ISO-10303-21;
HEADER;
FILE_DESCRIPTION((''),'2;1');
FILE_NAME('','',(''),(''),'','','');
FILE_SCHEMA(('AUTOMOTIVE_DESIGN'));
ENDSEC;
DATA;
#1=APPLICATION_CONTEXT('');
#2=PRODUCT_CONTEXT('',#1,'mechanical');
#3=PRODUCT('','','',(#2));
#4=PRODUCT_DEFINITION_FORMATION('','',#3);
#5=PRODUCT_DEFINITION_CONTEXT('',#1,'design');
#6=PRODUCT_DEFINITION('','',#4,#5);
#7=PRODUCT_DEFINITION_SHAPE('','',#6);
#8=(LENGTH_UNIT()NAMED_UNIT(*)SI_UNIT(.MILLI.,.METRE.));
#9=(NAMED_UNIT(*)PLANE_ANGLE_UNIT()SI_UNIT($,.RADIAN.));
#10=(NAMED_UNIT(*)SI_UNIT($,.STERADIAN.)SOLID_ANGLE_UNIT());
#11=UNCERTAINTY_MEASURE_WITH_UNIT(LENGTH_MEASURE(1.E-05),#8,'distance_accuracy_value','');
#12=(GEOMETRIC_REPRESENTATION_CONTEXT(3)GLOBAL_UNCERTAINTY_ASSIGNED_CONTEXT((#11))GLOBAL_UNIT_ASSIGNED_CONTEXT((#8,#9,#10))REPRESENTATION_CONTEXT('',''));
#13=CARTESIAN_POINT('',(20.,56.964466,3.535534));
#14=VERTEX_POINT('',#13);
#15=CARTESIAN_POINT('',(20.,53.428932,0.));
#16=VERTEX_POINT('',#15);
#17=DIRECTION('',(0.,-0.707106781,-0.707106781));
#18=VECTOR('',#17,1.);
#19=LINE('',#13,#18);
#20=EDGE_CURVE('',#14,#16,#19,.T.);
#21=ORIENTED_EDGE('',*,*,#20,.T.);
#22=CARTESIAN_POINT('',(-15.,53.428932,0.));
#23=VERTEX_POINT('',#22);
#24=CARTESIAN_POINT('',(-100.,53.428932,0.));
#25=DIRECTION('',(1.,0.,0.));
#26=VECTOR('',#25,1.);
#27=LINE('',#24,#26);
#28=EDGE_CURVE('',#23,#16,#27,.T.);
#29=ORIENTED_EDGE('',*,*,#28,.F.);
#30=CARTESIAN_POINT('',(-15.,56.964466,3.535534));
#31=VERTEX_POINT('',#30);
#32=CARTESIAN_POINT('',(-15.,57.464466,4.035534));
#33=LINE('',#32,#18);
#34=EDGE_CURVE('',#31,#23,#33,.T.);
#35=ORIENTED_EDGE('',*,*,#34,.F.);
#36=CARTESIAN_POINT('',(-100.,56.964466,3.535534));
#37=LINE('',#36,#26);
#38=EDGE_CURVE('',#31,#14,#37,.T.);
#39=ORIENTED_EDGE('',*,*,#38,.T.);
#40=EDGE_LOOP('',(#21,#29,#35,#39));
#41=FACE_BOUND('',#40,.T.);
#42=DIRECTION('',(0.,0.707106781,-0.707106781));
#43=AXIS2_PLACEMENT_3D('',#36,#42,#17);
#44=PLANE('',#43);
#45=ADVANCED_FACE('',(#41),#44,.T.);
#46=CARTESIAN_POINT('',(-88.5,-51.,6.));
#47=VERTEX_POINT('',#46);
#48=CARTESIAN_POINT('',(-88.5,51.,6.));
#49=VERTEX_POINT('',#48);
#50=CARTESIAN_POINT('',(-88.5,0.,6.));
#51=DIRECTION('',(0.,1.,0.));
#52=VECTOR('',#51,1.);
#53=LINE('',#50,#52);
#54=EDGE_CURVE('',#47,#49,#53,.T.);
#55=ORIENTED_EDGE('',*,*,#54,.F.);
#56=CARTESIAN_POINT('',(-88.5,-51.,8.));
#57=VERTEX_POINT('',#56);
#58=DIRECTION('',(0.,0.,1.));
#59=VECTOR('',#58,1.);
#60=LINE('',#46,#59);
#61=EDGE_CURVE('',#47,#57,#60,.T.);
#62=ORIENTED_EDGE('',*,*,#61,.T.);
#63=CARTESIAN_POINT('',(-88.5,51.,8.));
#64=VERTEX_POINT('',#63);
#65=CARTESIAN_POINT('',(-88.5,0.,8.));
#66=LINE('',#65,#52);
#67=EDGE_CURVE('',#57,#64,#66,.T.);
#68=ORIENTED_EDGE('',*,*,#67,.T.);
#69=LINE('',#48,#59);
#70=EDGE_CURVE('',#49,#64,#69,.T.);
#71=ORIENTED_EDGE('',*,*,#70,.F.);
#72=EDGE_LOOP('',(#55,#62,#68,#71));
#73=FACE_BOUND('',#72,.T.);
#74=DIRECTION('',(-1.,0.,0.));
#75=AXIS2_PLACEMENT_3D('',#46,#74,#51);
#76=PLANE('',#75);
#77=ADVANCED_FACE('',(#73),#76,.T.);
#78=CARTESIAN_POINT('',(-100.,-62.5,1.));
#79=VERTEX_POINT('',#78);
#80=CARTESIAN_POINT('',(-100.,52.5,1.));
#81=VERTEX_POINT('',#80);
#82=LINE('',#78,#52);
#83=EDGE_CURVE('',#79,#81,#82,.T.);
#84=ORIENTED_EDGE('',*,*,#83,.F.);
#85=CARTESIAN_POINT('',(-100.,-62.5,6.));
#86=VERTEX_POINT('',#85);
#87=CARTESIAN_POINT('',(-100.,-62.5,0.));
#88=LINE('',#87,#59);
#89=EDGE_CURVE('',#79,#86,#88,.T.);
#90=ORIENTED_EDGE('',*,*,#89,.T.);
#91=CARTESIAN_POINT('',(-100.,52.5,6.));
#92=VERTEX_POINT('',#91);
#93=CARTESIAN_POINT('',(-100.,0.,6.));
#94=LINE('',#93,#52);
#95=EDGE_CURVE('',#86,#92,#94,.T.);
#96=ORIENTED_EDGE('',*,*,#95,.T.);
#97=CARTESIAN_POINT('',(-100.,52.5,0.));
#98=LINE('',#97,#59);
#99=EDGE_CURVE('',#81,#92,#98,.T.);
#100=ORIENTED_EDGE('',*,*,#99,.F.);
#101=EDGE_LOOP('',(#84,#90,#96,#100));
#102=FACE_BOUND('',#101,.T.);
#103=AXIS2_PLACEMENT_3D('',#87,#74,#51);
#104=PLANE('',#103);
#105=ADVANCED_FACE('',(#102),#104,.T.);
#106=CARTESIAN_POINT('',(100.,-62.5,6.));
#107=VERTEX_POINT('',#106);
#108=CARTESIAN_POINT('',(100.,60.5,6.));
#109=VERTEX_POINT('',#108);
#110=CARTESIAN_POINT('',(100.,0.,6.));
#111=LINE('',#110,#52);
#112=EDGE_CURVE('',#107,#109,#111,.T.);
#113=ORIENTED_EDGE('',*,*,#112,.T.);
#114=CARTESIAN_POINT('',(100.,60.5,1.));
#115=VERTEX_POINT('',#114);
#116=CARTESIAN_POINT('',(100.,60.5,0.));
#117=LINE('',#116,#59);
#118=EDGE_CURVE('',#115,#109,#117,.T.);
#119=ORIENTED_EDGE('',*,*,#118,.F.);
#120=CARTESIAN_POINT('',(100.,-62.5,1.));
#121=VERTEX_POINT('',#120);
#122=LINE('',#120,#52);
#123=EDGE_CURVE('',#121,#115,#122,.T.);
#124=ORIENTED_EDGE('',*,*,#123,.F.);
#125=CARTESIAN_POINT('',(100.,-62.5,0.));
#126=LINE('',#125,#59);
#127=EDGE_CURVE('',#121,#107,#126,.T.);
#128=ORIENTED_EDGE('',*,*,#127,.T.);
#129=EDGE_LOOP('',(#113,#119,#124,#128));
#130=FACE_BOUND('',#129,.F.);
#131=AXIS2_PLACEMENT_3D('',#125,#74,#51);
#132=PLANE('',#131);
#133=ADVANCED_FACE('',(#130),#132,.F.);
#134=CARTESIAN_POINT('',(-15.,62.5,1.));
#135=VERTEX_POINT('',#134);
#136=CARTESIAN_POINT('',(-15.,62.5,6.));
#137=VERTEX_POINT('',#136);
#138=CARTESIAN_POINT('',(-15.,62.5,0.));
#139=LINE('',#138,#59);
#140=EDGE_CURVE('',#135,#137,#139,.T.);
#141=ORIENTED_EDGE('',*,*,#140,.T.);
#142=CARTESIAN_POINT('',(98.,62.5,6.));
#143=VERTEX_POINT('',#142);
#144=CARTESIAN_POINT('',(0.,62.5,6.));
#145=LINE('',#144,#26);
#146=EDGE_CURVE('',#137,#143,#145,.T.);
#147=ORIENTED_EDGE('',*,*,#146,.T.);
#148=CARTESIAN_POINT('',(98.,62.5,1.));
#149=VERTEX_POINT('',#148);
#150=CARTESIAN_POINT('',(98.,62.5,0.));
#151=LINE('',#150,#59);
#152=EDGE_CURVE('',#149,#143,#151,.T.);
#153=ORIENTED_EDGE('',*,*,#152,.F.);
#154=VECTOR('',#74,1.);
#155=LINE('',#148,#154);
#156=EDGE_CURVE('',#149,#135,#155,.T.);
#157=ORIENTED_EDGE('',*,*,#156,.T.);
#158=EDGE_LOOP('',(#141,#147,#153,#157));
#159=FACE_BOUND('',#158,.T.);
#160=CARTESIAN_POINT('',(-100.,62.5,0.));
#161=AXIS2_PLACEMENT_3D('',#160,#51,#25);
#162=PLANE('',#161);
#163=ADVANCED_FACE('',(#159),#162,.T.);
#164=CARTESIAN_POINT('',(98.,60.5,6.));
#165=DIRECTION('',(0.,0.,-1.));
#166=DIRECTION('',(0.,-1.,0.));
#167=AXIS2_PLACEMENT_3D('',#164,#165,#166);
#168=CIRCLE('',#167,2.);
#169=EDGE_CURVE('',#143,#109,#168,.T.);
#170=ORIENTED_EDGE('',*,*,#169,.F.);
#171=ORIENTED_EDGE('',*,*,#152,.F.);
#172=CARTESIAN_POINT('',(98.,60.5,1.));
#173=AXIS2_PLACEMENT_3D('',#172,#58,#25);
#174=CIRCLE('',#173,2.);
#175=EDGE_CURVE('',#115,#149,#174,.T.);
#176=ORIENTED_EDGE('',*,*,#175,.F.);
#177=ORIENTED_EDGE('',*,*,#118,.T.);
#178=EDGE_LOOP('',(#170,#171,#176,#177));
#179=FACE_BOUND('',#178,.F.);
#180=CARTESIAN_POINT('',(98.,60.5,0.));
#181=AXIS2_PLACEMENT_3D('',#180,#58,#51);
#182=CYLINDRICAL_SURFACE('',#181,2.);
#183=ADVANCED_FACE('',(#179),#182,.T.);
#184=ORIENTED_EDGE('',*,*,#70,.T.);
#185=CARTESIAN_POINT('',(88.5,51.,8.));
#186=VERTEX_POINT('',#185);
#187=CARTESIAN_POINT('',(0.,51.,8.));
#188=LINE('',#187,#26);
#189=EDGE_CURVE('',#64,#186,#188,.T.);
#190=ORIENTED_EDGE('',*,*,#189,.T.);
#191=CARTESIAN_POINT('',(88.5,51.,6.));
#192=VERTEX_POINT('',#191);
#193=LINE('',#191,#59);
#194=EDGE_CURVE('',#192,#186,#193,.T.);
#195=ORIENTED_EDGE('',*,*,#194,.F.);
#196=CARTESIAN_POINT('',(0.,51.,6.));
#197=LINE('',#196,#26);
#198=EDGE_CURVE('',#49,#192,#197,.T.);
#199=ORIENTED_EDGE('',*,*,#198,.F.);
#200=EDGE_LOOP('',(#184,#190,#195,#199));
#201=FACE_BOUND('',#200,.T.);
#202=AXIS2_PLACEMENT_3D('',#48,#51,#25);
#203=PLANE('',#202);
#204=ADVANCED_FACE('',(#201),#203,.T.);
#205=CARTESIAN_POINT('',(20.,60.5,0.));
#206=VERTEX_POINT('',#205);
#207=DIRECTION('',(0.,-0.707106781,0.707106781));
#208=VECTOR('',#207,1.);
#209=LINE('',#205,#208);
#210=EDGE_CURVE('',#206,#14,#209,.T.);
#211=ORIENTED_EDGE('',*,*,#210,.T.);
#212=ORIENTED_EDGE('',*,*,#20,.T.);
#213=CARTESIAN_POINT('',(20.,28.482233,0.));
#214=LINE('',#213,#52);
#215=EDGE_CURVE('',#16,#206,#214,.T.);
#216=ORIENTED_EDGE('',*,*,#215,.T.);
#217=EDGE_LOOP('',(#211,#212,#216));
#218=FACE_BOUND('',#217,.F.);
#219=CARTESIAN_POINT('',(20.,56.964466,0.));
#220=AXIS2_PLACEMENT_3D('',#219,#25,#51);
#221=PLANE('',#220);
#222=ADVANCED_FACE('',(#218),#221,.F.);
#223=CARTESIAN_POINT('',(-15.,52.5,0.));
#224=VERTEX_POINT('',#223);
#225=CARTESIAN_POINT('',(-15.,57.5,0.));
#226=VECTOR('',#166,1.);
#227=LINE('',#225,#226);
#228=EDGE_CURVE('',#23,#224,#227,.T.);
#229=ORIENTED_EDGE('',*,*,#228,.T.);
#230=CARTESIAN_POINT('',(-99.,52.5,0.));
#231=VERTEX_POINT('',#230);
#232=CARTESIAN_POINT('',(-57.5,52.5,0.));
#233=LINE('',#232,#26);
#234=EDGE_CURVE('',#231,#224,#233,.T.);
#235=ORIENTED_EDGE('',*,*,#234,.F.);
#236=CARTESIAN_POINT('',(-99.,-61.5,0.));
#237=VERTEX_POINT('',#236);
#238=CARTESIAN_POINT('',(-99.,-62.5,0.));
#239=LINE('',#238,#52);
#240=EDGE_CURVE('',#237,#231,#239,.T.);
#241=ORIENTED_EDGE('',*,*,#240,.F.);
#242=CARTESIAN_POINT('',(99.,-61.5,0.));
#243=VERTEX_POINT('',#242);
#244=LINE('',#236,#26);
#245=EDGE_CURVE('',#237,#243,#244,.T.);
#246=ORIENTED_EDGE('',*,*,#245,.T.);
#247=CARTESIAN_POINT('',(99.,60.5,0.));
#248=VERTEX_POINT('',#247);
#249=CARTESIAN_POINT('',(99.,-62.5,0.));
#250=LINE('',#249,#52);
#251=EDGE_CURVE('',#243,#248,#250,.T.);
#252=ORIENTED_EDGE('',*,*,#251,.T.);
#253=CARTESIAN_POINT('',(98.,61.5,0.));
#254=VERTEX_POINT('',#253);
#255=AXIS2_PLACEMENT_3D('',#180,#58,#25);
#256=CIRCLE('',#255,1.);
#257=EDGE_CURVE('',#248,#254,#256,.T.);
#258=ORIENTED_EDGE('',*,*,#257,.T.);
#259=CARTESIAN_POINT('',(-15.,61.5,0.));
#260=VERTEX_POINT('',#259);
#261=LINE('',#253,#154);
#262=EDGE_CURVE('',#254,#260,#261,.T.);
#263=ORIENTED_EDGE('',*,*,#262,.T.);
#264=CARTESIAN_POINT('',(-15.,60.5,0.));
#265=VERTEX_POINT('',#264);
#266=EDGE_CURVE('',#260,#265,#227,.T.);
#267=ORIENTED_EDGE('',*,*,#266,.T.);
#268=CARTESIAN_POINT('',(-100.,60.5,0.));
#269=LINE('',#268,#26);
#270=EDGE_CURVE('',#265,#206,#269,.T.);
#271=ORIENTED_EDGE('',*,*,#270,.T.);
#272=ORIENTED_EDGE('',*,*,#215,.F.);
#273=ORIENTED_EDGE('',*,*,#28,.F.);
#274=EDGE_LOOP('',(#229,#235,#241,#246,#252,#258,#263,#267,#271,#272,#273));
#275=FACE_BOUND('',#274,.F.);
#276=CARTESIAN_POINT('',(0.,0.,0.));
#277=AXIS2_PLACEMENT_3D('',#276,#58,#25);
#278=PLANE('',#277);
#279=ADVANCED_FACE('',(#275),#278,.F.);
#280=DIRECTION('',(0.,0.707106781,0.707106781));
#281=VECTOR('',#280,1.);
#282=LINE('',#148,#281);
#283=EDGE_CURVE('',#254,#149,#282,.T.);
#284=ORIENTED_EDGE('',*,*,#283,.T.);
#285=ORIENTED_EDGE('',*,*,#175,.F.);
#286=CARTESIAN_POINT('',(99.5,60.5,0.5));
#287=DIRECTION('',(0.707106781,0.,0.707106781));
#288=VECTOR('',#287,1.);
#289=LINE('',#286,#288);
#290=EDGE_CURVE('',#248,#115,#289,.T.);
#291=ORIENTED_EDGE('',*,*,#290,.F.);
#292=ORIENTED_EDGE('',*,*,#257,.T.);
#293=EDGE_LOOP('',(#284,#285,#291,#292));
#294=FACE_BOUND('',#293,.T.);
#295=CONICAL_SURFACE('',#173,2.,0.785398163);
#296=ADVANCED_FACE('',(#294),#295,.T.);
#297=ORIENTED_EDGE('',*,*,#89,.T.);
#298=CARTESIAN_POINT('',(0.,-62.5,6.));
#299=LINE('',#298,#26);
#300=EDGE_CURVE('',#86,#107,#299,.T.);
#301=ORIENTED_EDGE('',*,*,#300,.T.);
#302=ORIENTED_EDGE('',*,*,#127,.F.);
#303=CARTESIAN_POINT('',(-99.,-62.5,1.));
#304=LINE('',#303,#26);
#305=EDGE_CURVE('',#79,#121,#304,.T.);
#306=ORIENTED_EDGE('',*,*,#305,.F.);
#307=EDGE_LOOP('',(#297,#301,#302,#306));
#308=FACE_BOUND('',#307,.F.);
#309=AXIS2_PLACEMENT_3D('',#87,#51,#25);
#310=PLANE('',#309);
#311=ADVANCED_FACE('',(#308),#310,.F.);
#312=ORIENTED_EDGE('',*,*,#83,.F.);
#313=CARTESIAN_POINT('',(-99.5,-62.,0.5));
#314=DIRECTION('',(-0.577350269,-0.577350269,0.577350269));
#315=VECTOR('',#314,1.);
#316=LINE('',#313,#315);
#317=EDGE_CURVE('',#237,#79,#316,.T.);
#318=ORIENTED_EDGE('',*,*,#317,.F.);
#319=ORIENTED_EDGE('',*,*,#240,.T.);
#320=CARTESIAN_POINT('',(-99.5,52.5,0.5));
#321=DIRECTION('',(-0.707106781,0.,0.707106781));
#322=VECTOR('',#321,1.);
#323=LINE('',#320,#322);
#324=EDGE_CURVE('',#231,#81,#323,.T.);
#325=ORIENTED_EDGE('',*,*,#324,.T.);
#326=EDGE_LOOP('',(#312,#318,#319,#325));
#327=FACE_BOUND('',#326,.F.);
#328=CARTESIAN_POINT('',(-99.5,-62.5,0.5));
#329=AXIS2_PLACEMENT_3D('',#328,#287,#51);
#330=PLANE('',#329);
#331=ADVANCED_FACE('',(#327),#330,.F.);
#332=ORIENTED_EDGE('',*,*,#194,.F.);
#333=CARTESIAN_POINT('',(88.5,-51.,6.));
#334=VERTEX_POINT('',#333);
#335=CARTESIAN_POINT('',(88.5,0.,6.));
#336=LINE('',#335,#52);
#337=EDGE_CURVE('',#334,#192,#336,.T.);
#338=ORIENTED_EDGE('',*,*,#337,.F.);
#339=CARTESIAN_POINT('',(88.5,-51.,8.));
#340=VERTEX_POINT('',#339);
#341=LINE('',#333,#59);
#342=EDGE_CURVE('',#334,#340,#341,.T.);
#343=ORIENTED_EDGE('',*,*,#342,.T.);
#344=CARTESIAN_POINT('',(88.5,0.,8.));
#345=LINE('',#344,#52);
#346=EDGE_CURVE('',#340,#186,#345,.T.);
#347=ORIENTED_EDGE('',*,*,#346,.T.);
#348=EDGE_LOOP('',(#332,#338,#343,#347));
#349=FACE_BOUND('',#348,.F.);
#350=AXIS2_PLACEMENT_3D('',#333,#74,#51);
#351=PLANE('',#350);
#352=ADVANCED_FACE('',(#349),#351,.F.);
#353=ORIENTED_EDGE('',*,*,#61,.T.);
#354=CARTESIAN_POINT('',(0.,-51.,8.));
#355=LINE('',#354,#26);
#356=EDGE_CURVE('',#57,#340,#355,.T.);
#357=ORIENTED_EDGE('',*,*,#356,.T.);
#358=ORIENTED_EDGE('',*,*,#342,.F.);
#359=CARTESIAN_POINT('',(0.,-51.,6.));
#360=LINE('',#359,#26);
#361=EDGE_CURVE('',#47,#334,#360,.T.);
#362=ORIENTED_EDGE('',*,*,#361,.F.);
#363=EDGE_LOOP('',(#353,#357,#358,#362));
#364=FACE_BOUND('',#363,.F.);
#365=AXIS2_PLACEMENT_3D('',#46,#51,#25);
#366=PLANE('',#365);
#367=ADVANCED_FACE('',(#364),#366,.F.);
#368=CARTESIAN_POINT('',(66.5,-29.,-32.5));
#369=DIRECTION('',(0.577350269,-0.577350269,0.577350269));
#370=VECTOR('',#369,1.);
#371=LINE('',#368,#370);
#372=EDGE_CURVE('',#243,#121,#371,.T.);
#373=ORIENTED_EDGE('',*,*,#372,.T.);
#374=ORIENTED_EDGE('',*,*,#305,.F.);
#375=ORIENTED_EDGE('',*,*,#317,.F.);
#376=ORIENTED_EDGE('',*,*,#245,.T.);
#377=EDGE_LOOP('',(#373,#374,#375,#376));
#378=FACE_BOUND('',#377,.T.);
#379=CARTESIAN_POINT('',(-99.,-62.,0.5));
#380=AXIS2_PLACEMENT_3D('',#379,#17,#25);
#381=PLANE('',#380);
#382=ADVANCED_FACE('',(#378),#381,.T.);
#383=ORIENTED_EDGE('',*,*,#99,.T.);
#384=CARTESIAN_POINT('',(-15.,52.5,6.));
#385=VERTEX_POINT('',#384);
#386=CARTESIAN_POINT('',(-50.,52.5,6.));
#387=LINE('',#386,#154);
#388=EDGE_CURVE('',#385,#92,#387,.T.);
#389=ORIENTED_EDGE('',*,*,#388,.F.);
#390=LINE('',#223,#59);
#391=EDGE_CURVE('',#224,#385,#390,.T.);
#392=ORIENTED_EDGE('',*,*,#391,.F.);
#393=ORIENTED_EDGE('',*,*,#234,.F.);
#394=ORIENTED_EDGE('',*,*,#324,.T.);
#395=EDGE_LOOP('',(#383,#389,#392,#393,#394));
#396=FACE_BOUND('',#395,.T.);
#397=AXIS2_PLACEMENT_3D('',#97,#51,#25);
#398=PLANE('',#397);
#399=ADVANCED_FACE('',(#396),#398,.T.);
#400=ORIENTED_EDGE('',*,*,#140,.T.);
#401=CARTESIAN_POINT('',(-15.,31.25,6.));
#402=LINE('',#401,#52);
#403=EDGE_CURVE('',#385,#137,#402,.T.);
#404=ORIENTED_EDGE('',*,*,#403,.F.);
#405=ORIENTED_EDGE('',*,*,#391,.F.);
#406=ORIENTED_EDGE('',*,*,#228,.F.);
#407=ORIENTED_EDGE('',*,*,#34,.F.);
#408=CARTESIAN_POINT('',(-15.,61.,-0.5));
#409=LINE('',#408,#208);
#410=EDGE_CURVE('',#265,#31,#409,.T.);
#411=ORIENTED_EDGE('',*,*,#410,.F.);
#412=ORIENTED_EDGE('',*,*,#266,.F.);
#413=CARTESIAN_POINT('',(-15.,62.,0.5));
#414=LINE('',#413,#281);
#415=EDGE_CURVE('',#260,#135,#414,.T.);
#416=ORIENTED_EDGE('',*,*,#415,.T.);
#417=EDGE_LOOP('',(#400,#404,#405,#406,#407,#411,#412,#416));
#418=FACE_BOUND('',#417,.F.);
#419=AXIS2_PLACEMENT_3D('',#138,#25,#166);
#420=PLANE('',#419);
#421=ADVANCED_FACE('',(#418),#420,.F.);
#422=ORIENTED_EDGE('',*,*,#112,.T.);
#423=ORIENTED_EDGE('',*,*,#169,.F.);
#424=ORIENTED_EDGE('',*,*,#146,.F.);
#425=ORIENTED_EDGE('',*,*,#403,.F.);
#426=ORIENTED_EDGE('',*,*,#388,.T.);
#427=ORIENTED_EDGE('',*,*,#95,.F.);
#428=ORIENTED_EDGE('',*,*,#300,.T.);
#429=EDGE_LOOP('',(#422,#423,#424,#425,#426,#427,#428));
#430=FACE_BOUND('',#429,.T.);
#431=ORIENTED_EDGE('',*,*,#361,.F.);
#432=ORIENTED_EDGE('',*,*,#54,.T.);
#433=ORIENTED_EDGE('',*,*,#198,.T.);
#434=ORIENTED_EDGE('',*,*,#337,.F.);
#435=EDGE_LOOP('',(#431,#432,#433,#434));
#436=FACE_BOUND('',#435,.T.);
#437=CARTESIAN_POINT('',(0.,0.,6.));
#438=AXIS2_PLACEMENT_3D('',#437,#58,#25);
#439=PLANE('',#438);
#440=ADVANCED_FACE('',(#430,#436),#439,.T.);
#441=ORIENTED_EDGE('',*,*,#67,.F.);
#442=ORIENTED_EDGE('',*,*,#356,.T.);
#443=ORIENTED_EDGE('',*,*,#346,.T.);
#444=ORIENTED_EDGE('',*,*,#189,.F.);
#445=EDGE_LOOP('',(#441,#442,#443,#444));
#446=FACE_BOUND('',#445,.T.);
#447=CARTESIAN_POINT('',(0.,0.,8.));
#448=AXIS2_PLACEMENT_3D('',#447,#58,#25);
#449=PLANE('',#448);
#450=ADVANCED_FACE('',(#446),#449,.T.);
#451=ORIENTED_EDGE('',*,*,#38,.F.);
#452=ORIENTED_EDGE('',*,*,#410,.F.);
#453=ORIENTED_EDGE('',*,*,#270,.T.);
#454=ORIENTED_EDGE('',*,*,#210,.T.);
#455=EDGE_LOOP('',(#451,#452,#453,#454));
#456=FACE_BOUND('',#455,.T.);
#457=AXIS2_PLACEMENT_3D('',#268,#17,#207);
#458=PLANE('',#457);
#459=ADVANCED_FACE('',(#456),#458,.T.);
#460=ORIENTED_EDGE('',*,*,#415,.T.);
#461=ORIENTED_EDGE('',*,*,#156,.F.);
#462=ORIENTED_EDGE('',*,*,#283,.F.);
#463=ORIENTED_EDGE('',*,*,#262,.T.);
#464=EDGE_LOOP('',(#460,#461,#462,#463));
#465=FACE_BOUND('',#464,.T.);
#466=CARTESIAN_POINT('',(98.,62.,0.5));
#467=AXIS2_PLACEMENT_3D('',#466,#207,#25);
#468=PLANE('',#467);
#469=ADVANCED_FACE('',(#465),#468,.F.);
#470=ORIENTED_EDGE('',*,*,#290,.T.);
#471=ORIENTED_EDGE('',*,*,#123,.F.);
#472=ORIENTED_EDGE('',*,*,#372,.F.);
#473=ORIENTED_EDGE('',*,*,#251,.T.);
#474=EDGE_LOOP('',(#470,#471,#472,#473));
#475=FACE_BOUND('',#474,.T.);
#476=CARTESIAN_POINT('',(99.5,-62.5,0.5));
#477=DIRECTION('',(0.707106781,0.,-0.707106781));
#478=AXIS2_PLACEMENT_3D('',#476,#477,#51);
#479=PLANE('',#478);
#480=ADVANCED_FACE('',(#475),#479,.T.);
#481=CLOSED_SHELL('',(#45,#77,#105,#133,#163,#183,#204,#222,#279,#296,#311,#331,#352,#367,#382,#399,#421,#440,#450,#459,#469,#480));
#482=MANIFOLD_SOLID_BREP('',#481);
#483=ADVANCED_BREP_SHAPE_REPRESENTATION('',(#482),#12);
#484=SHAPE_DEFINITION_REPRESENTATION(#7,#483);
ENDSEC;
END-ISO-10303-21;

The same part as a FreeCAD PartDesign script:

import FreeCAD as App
import Part
import Sketcher

V = App.Vector
Q = App.Units.Quantity


def edges_at(feature, points):
    """Names of the edges that pass closest to the given points."""
    edges = feature.Shape.Edges
    near = lambda p: min(range(len(edges)), key=lambda i: edges[i].distToShape(Part.Vertex(*p))[0])
    return sorted({f"Edge{near(p) + 1}" for p in points})


def add_polygon(sketch, points):
    """Adds a closed chain of lines whose ends are joined by coincident constraints."""
    first, n = sketch.GeometryCount, len(points)
    for a, b in zip(points, points[1:] + points[:1]):
        sketch.addGeometry(Part.LineSegment(App.Vector(*a, 0), App.Vector(*b, 0)), False)
    for i in range(n):
        sketch.addConstraint(Sketcher.Constraint("Coincident", first + i, 2, first + (i + 1) % n, 1))

doc = App.newDocument("Part")
body = doc.addObject("PartDesign::Body", "Body")

# Sketch on XY plane
sketch1 = body.newObject("Sketcher::SketchObject", "Sketch")
sketch1.AttachmentSupport = (doc.getObject("XY_Plane"), [""])
sketch1.MapMode = "FlatFace"
add_polygon(sketch1, [(-100, 62.5), (-100, -62.5), (100, -62.5), (100, 62.5)])  # lines 0-3
sketch1.addConstraint([
    Sketcher.Constraint("Vertical", 0),
    Sketcher.Constraint("Horizontal", 1),
    Sketcher.Constraint("Vertical", 2),
    Sketcher.Constraint("Horizontal", 3),
    Sketcher.Constraint("Symmetric", 0, 2, 2, 2, -1, 1),
    Sketcher.Constraint("DistanceX", 1, 1, 1, 2, Q("200 mm")),
    Sketcher.Constraint("DistanceY", 0, 2, 0, 1, Q("125 mm")),
])
pad1 = body.newObject("PartDesign::Pad", "Pad")
pad1.Profile = sketch1
pad1.Length = 6

# Sketch on XY plane
sketch2 = body.newObject("Sketcher::SketchObject", "Sketch001")
sketch2.AttachmentSupport = (doc.getObject("XY_Plane"), [""])
sketch2.MapMode = "FlatFace"
sketch2.AttachmentOffset = App.Placement(V(0, 0, 6), App.Rotation())
add_polygon(sketch2, [(-88.5, 51), (-88.5, -51), (88.5, -51), (88.5, 51)])  # lines 0-3
sketch2.addConstraint([
    Sketcher.Constraint("Vertical", 0),
    Sketcher.Constraint("Horizontal", 1),
    Sketcher.Constraint("Vertical", 2),
    Sketcher.Constraint("Horizontal", 3),
    Sketcher.Constraint("Symmetric", 0, 2, 2, 2, -1, 1),
    Sketcher.Constraint("DistanceX", 1, 1, 1, 2, Q("177 mm")),
    Sketcher.Constraint("DistanceY", 0, 2, 0, 1, Q("102 mm")),
])
pad2 = body.newObject("PartDesign::Pad", "Pad001")
pad2.Profile = sketch2
pad2.Length = 2

# Sketch on YZ plane
sketch3 = body.newObject("Sketcher::SketchObject", "Sketch002")
sketch3.AttachmentSupport = (doc.getObject("YZ_Plane"), [""])
sketch3.MapMode = "FlatFace"
sketch3.AttachmentOffset = App.Placement(V(0, 0, -100), App.Rotation())
add_polygon(sketch3, [(56.964466, 3.535534), (60.5, 0), (56.964466, -3.535534), (53.428932, 0)])  # lines 0-3
sketch3.addConstraint([
    Sketcher.Constraint("Symmetric", 1, 2, 3, 2, -1),
    Sketcher.Constraint("PointOnObject", 0, 2, -1),
    Sketcher.Constraint("PointOnObject", 2, 2, -1),
    Sketcher.Constraint("Perpendicular", 0, 1),
    Sketcher.Constraint("Perpendicular", 1, 2),
    Sketcher.Constraint("Distance", 0, Q("5 mm")),
    Sketcher.Constraint("DistanceX", -1, 1, 0, 2, Q("60.5 mm")),
])
pocket1 = body.newObject("PartDesign::Pocket", "Pocket")
pocket1.Profile = sketch3
pocket1.Length = 120
pocket1.Reversed = True

# Sketch on XY plane
sketch4 = body.newObject("Sketcher::SketchObject", "Sketch003")
sketch4.AttachmentSupport = (doc.getObject("XY_Plane"), [""])
sketch4.MapMode = "FlatFace"
add_polygon(sketch4, [(-100, 52.5), (-100, 62.5), (-15, 62.5), (-15, 52.5)])  # lines 0-3
sketch4.addConstraint([
    Sketcher.Constraint("Vertical", 0),
    Sketcher.Constraint("Horizontal", 1),
    Sketcher.Constraint("Vertical", 2),
    Sketcher.Constraint("Horizontal", 3),
    Sketcher.Constraint("DistanceX", 1, 1, 1, 2, Q("85 mm")),
    Sketcher.Constraint("DistanceY", 0, 1, 0, 2, Q("10 mm")),
    Sketcher.Constraint("DistanceX", 0, 2, -1, 1, Q("100 mm")),
    Sketcher.Constraint("DistanceY", -1, 1, 0, 2, Q("62.5 mm")),
])
pocket2 = body.newObject("PartDesign::Pocket", "Pocket001")
pocket2.Profile = sketch4
pocket2.Type = "ThroughAll"
pocket2.Reversed = True
doc.recompute()

fillet = body.newObject("PartDesign::Fillet", "Fillet")
fillet.Base = (pocket2, edges_at(pocket2, [(100, 62.5, 3)]))
fillet.Radius = 2
doc.recompute()

chamfer = body.newObject("PartDesign::Chamfer", "Chamfer")
chamfer.Base = (fillet, edges_at(fillet, [(100, -1, 0)]))
chamfer.Size = 1
doc.recompute()

chamfer2 = body.newObject("PartDesign::Chamfer", "Chamfer001")
chamfer2.Base = (chamfer, edges_at(chamfer, [(-100, -5, 0)]))
chamfer2.Size = 1
doc.recompute()

chamfer3 = body.newObject("PartDesign::Chamfer", "Chamfer002")
chamfer3.Base = (chamfer2, edges_at(chamfer2, [(0, -62.5, 0)]))
chamfer3.Size = 1

doc.recompute()
